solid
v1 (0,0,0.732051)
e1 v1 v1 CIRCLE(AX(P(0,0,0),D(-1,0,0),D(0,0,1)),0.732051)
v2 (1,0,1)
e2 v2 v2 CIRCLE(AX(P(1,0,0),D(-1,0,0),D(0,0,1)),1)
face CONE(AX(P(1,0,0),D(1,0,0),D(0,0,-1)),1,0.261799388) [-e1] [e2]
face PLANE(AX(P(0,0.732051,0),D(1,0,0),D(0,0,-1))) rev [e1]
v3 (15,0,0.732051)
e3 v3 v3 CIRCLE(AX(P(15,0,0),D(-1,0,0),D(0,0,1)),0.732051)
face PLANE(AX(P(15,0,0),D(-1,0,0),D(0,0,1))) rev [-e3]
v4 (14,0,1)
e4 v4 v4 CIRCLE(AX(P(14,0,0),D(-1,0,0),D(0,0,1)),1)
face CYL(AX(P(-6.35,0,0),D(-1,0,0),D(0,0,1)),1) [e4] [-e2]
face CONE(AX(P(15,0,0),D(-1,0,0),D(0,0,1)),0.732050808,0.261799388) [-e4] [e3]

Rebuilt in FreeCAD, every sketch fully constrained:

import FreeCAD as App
import Part
import Sketcher
Q = App.Units.Quantity


def add_polygon(sketch, points):
    """Adds a closed chain of lines whose ends are joined by coincident constraints."""
    first, n = sketch.GeometryCount, len(points)
    for a, b in zip(points, points[1:] + points[:1]):
        sketch.addGeometry(Part.LineSegment(App.Vector(*a, 0), App.Vector(*b, 0)), False)
    for i in range(n):
        sketch.addConstraint(Sketcher.Constraint("Coincident", first + i, 2, first + (i + 1) % n, 1))

doc = App.newDocument("Part")
body = doc.addObject("PartDesign::Body", "Body")

# Sketch on XY plane
sketch1 = body.newObject("Sketcher::SketchObject", "Sketch")
sketch1.AttachmentSupport = (doc.getObject("XY_Plane"), [""])
sketch1.MapMode = "FlatFace"
add_polygon(sketch1, [(0, 0), (15, 0), (15, 0.732051), (14, 1), (1, 1), (0, 0.732051)])  # lines 0-5
sketch1.addConstraint(Sketcher.Constraint("Horizontal", 0))
sketch1.addConstraint(Sketcher.Constraint("Vertical", 1))
sketch1.addConstraint(Sketcher.Constraint("Horizontal", 3))
sketch1.addConstraint(Sketcher.Constraint("Vertical", 5))
sketch1.addConstraint(Sketcher.Constraint("Coincident", 5, 2, -1, 1))
sketch1.addConstraint(Sketcher.Constraint("Horizontal", 1, 2, 4, 2))
sketch1.addConstraint(Sketcher.Constraint("Equal", 2, 4))
sketch1.addConstraint(Sketcher.Constraint("DistanceX", 0, 1, 0, 2, 15.0))
sketch1.addConstraint(Sketcher.Constraint("DistanceX", 3, 2, 3, 1, 13.0))
sketch1.addConstraint(Sketcher.Constraint("Angle", 2, Q("165 deg")))
sketch1.addConstraint(Sketcher.Constraint("DistanceY", -1, 1, 2, 2, 1.0))
revolution = body.newObject("PartDesign::Revolution", "Revolution")
revolution.Profile = sketch1
revolution.ReferenceAxis = (sketch1, ["H_Axis"])
revolution.Angle = 360

doc.recompute()
